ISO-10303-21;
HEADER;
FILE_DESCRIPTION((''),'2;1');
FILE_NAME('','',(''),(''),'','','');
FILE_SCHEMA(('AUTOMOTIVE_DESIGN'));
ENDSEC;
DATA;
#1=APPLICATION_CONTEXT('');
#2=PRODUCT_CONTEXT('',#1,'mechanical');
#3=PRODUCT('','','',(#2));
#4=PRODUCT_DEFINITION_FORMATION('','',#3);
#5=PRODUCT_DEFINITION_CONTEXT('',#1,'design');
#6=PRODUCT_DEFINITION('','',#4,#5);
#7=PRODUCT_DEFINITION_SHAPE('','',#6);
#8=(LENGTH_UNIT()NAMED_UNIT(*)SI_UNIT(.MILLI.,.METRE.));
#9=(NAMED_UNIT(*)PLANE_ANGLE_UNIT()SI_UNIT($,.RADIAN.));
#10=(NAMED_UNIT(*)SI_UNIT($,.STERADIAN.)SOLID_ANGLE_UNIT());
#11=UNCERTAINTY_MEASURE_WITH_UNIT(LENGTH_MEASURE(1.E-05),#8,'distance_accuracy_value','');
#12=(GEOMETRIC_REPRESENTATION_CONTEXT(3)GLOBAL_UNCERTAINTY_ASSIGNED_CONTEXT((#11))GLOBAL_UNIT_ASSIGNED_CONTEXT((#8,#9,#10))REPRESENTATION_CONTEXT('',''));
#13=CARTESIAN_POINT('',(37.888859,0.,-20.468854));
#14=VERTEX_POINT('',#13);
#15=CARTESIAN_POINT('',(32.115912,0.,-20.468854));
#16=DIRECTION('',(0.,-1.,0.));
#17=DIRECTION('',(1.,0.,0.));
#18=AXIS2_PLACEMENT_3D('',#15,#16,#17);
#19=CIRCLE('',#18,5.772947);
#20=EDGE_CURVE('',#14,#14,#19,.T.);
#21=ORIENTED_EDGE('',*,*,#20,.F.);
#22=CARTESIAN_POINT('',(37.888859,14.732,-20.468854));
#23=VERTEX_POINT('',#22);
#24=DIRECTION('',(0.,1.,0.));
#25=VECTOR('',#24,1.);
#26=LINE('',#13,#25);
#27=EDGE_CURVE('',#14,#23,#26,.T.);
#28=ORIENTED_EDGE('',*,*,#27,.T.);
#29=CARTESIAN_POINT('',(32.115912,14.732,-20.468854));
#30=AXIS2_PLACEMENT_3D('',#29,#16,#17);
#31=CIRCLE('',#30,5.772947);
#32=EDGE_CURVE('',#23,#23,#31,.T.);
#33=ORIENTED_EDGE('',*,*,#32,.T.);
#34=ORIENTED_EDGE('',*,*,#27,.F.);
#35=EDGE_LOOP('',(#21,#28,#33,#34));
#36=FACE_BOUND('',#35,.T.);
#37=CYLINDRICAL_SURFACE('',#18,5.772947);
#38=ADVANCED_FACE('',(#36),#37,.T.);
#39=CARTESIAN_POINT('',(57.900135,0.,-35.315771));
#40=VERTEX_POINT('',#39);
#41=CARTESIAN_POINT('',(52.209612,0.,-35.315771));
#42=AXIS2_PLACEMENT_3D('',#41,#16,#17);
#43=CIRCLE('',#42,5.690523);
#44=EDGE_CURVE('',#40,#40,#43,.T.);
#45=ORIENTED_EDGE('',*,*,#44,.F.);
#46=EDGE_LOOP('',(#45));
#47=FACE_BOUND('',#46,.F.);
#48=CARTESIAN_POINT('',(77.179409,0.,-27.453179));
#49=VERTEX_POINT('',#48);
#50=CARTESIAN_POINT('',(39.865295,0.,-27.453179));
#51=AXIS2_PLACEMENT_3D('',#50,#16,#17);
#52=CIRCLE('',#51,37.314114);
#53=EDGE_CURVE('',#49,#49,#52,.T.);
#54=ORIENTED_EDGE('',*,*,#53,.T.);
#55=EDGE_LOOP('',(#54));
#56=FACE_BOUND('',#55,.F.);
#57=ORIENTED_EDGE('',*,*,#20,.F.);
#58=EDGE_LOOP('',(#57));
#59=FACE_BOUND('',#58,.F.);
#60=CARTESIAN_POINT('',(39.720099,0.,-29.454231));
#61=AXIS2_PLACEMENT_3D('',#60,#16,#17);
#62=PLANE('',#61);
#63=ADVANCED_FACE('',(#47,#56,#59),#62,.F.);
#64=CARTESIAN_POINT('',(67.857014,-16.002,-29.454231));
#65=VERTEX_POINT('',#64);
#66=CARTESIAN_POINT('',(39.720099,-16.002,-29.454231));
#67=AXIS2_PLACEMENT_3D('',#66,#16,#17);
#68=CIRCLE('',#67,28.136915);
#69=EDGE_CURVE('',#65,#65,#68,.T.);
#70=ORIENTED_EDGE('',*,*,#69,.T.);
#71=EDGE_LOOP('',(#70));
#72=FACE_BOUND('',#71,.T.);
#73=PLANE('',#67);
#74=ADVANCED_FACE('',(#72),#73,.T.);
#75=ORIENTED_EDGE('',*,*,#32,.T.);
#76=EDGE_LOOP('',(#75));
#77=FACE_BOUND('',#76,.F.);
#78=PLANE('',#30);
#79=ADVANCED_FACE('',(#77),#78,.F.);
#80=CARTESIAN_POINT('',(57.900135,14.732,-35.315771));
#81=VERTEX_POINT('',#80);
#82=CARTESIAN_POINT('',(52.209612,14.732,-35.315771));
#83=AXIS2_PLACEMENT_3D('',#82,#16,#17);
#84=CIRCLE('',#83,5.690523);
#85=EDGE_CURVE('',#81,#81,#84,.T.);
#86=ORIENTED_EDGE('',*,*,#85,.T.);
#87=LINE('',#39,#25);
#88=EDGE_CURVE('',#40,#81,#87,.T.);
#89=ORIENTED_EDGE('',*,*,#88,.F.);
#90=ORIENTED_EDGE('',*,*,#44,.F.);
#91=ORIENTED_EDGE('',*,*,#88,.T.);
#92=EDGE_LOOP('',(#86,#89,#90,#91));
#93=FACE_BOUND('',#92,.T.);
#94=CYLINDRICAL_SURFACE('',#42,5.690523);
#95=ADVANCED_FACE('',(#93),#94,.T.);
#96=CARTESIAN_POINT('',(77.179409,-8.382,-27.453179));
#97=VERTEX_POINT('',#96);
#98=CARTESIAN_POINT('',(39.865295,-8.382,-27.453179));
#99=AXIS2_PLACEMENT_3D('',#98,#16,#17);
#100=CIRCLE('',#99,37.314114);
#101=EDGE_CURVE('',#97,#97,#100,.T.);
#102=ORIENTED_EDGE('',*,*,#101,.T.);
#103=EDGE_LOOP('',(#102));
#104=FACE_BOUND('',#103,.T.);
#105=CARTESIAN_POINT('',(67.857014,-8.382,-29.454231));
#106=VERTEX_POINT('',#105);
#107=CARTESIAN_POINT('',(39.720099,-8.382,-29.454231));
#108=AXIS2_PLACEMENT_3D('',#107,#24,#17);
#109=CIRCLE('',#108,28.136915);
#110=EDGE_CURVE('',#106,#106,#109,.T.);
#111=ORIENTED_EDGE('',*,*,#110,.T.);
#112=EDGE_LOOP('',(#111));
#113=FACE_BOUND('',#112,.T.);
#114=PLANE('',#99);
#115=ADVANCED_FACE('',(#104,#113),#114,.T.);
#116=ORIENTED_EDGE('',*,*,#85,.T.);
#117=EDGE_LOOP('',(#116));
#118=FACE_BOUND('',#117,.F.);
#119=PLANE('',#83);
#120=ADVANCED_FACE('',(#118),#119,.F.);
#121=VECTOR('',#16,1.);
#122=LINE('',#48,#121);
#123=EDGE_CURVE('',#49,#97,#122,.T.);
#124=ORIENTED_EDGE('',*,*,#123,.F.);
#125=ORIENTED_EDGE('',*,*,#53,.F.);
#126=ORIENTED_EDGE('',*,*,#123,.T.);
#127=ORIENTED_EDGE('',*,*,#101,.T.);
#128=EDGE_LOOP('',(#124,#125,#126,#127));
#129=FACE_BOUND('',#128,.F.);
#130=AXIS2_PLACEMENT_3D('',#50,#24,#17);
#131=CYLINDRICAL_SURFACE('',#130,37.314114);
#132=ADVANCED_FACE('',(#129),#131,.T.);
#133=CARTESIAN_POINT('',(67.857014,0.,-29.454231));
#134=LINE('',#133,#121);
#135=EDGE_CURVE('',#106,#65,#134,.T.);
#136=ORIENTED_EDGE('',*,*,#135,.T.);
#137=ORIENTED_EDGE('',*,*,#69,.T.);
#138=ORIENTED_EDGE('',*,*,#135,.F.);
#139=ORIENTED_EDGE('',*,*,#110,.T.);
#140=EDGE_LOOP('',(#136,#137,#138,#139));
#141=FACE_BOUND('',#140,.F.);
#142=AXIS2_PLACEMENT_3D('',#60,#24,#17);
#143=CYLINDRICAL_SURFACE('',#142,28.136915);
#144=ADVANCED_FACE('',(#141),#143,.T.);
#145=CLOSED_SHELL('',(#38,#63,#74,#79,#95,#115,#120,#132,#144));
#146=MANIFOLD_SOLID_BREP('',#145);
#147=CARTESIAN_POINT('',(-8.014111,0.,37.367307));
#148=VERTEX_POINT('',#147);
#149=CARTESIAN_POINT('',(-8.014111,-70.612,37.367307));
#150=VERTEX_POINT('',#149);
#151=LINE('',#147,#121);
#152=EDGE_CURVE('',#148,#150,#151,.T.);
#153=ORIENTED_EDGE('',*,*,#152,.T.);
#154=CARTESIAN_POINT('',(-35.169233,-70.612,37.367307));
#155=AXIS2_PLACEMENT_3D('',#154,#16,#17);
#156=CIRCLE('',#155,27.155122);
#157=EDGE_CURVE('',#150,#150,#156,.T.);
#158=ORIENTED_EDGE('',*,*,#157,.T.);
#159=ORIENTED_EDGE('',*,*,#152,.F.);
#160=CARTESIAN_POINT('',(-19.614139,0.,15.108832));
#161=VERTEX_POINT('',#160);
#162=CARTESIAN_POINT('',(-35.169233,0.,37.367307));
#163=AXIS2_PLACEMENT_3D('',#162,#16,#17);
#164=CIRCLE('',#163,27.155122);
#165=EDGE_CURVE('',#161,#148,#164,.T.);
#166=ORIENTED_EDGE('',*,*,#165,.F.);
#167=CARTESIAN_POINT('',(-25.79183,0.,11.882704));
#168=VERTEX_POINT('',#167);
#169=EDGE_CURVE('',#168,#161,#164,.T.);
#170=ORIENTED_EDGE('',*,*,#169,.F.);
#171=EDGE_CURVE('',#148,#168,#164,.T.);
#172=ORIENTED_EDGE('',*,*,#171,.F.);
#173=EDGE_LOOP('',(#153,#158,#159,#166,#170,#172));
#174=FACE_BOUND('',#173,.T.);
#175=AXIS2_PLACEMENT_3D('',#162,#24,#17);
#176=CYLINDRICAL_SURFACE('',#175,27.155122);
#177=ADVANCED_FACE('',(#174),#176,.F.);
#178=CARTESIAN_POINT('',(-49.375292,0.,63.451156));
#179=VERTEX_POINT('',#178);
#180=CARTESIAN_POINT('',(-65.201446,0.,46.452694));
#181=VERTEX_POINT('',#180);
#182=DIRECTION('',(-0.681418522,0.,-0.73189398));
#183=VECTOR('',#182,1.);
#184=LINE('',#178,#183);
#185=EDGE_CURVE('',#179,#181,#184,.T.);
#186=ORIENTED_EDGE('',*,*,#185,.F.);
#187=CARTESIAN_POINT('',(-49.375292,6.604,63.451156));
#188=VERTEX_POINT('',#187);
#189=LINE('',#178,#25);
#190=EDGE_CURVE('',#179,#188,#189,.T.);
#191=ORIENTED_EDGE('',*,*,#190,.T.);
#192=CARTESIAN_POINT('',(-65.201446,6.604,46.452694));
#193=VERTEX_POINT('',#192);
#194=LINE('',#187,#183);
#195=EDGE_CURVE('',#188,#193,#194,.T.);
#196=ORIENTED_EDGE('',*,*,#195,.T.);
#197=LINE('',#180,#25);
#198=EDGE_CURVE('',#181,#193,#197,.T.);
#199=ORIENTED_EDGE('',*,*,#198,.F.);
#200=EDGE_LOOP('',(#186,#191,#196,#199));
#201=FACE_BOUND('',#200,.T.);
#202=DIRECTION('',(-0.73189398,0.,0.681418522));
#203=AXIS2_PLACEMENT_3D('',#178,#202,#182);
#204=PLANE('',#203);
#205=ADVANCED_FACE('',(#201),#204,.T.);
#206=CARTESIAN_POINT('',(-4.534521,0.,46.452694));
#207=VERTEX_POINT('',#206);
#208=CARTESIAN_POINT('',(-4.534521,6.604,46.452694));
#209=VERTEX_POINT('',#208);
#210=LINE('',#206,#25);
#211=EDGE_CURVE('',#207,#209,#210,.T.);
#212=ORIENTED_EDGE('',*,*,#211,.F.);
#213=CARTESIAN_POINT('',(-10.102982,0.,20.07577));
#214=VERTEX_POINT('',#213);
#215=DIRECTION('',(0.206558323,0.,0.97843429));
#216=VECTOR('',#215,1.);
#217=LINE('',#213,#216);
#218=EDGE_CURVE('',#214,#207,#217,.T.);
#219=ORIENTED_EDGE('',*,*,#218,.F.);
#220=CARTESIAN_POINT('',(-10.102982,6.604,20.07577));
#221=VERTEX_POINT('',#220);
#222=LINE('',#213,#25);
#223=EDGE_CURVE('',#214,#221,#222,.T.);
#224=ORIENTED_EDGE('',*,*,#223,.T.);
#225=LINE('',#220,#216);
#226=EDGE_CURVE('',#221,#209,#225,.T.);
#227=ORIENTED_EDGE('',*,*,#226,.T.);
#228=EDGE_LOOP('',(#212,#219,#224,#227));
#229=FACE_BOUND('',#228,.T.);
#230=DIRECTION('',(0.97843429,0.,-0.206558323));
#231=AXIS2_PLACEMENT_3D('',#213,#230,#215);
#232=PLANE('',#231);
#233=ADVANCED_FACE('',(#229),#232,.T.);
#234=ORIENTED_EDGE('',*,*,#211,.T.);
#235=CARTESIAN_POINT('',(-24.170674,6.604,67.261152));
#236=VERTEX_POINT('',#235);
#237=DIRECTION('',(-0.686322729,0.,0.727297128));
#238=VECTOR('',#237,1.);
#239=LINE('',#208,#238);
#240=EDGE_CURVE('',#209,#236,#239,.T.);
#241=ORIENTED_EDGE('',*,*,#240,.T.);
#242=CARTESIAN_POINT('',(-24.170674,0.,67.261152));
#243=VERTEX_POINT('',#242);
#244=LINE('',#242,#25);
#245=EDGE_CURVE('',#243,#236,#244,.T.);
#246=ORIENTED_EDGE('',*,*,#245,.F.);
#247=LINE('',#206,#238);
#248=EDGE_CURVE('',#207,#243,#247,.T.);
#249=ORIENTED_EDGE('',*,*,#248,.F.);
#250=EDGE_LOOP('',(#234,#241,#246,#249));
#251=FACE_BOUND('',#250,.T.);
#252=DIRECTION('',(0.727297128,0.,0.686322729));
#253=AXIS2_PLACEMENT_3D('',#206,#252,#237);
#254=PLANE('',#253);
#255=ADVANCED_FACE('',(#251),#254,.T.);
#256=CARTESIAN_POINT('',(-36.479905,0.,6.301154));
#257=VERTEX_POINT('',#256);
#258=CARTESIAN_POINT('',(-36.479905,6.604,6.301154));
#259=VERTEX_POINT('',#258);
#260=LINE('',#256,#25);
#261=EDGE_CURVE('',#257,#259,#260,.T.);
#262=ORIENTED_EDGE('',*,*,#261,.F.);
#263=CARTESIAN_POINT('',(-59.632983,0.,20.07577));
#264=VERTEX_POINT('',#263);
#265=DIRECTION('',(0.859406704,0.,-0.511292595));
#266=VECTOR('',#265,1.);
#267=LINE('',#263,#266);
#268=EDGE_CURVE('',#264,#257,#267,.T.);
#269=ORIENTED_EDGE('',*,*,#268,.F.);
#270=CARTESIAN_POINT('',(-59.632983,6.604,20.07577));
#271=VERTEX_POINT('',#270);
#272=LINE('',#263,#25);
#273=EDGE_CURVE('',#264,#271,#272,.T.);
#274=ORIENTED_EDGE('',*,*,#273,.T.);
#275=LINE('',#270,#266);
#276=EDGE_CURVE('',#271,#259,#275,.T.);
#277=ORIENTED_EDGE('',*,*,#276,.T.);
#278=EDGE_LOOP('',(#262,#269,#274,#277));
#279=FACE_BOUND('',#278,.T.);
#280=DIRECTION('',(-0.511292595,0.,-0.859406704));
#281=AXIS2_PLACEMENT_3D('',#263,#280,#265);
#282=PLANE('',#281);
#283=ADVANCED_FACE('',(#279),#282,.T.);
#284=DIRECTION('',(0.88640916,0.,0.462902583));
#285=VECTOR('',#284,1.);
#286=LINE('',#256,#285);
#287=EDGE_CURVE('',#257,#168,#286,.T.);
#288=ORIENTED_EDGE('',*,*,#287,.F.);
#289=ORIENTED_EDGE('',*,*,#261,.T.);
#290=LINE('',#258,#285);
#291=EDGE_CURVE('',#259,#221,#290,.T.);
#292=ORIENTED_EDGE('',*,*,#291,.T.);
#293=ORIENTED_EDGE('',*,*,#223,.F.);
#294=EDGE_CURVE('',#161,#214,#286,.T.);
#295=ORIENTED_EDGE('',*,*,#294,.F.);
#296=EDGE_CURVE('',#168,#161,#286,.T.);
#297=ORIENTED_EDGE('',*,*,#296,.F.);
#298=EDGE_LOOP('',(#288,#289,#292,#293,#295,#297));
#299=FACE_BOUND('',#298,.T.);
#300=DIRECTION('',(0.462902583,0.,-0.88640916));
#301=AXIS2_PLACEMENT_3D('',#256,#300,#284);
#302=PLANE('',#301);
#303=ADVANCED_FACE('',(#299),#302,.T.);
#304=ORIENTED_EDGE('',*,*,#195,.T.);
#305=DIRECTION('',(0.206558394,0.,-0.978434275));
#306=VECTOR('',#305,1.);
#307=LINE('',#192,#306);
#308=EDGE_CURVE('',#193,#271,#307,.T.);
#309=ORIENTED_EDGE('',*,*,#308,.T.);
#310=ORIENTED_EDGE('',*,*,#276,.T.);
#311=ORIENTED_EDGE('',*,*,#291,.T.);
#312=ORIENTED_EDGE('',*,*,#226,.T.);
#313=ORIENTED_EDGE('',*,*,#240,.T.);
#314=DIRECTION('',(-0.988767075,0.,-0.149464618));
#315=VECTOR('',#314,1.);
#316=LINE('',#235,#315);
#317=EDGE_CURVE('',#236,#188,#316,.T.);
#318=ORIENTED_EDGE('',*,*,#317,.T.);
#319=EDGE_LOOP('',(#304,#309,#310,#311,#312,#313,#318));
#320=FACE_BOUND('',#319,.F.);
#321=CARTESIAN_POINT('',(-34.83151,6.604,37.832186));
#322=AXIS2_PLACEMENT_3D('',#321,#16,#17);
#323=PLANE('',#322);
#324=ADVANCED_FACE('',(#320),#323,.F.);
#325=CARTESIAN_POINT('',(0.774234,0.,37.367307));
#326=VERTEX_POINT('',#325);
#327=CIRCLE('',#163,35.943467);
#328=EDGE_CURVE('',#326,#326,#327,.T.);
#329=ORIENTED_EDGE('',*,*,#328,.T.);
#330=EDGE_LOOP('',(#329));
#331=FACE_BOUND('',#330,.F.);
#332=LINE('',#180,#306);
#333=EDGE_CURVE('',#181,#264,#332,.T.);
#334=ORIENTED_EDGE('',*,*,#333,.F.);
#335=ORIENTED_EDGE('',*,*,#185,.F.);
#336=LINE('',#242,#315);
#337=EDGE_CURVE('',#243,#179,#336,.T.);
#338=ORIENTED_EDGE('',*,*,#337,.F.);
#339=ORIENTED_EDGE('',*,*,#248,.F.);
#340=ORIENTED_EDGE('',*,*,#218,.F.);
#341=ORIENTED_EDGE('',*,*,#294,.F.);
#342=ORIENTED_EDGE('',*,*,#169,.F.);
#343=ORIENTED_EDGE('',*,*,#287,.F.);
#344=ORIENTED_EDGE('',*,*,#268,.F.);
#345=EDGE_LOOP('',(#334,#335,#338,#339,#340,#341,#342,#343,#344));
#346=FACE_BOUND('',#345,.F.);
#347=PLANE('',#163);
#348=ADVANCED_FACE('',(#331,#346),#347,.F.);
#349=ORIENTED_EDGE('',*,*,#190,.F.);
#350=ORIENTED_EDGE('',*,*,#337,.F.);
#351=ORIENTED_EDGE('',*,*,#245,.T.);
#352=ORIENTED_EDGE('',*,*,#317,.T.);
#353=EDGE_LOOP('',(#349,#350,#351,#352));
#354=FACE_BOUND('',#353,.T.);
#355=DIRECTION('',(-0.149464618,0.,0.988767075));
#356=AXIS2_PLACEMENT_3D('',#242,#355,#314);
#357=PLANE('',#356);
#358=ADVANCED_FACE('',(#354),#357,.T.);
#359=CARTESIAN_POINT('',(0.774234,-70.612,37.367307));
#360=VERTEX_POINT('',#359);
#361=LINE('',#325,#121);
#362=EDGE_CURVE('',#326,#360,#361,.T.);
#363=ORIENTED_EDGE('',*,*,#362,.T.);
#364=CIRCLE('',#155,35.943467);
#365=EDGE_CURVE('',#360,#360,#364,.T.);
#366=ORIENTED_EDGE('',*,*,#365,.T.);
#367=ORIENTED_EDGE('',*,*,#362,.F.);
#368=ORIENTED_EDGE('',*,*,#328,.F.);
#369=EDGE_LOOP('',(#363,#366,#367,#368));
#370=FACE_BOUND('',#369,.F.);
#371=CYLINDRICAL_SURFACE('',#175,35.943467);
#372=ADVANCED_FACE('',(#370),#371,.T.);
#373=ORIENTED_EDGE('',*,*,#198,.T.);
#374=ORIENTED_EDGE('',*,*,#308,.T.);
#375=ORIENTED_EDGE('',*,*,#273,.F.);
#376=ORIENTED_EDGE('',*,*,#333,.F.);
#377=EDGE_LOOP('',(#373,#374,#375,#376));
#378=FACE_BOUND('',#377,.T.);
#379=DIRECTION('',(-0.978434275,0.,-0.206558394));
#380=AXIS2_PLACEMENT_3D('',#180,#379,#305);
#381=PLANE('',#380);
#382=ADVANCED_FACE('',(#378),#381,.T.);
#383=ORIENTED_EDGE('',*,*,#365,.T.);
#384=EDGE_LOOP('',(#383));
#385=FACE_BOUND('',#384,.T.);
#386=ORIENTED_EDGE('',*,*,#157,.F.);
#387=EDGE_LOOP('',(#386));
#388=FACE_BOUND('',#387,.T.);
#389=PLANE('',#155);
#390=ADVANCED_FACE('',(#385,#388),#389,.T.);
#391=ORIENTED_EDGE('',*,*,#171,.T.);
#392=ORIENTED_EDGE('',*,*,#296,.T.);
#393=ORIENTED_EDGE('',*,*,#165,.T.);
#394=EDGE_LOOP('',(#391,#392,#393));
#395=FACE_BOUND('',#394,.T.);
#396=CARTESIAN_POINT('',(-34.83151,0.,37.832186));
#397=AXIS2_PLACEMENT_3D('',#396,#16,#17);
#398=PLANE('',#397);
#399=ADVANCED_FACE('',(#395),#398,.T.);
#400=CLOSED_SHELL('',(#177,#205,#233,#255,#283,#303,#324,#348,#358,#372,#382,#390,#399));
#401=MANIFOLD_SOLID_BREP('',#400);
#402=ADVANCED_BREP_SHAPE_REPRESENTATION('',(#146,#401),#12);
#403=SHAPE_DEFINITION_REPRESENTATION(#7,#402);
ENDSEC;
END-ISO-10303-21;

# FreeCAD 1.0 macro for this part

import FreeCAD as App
import Part
import Sketcher
from FreeCAD import Vector
Q = App.Units.Quantity

doc = App.newDocument("Part")
body = doc.addObject("PartDesign::Body", "Body")

sketch1 = body.newObject("Sketcher::SketchObject", "Sketch")
sketch1.AttachmentSupport = (doc.getObject("XZ_Plane"), [""])
sketch1.MapMode = "FlatFace"
sketch1.addGeometry([
    Part.Circle(Vector(-35, 37, 0), Vector(0, 0, 1), 36),
    Part.Circle(Vector(-35, 37, 0), Vector(0, 0, 1), 27),
], False)
sketch1.addConstraint([
    Sketcher.Constraint("Coincident", 1, 3, 0, 3),
    Sketcher.Constraint("Diameter", 0, 71.886934),
    Sketcher.Constraint("Diameter", 1, 54.310244),
    Sketcher.Constraint("DistanceX", 0, 3, -1, 1, 35.169233),
    Sketcher.Constraint("DistanceY", -1, 1, 0, 3, 37.367307),
])
pad1 = body.newObject("PartDesign::Pad", "Pad")
pad1.Profile = sketch1
pad1.Length = Q("2.78 in")

sketch2 = body.newObject("Sketcher::SketchObject", "Sketch001")
sketch2.AttachmentSupport = (doc.getObject("XZ_Plane"), [""])
sketch2.MapMode = "FlatFace"
sketch2.addGeometry([
    Part.LineSegment(Vector(-24, 67, 0), Vector(-49, 63, 0)),
    Part.LineSegment(Vector(-49, 63, 0), Vector(-65, 46, 0)),
    Part.LineSegment(Vector(-65, 46, 0), Vector(-60, 20, 0)),
    Part.LineSegment(Vector(-60, 20, 0), Vector(-36, 6, 0)),
    Part.LineSegment(Vector(-36, 6, 0), Vector(-10, 20, 0)),
    Part.LineSegment(Vector(-10, 20, 0), Vector(-5, 46, 0)),
    Part.LineSegment(Vector(-5, 46, 0), Vector(-24, 67, 0)),
], False)
sketch2.addConstraint([
    Sketcher.Constraint("Coincident", 0, 2, 1, 1),
    Sketcher.Constraint("Coincident", 1, 2, 2, 1),
    Sketcher.Constraint("Coincident", 2, 2, 3, 1),
    Sketcher.Constraint("Coincident", 3, 2, 4, 1),
    Sketcher.Constraint("Coincident", 4, 2, 5, 1),
    Sketcher.Constraint("Coincident", 5, 2, 6, 1),
    Sketcher.Constraint("Coincident", 6, 2, 0, 1),
    Sketcher.Constraint("Horizontal", 2, 2, 4, 2),
    Sketcher.Constraint("Horizontal", 1, 2, 5, 2),
    Sketcher.Constraint("Equal", 2, 5),
    Sketcher.Constraint("DistanceY", 3, 2, 0, 2, Q("2.2500001 in")),
    Sketcher.Constraint("DistanceX", 2, 2, 4, 2, Q("1.95 in")),
    Sketcher.Constraint("DistanceY", 0, 2, 6, 2, Q("0.1499998 in")),
    Sketcher.Constraint("Distance", 2, 26.958299),
    Sketcher.Constraint("Distance", 3, 26.94077),
    Sketcher.Constraint("Distance", 4, 29.757051),
    Sketcher.Constraint("Distance", 6, 28.61067),
    Sketcher.Constraint("DistanceY", -1, 1, 2, 2, 20.07577),
    Sketcher.Constraint("DistanceX", 5, 2, -1, 1, 4.534521),
    Sketcher.Constraint("DistanceY", 1, 2, 0, 2, 16.998462),
    Sketcher.Constraint("DistanceX", 2, 2, 0, 2, 10.257691),
])
pad2 = body.newObject("PartDesign::Pad", "Pad001")
pad2.Profile = sketch2
pad2.Length = Q("0.26 in")
pad2.Reversed = True
body2 = doc.addObject("PartDesign::Body", "Body001")

sketch3 = body2.newObject("Sketcher::SketchObject", "Sketch002")
sketch3.AttachmentSupport = (doc.getObject("XZ_Plane001"), [""])
sketch3.MapMode = "FlatFace"
sketch3.addGeometry(Part.Circle(Vector(40, -27, 0), Vector(0, 0, 1), 37), False)
sketch3.addConstraint([
    Sketcher.Constraint("Diameter", 0, 74.628228),
    Sketcher.Constraint("DistanceX", -1, 1, 0, 3, Q("1.5694998 in")),
    Sketcher.Constraint("DistanceY", 0, 3, -1, 1, 27.453179),
])
pad3 = body2.newObject("PartDesign::Pad", "Pad002")
pad3.Profile = sketch3
pad3.Length = Q("0.33 in")

sketch4 = body2.newObject("Sketcher::SketchObject", "Sketch003")
sketch4.AttachmentSupport = (doc.getObject("XZ_Plane001"), [""])
sketch4.MapMode = "FlatFace"
sketch4.addGeometry(Part.Circle(Vector(40, -29, 0), Vector(0, 0, 1), 28), False)
sketch4.addConstraint([
    Sketcher.Constraint("Diameter", 0, 56.27383),
    Sketcher.Constraint("DistanceX", -1, 1, 0, 3, 39.720099),
    Sketcher.Constraint("DistanceY", 0, 3, -1, 1, 29.454231),
])
pad4 = body2.newObject("PartDesign::Pad", "Pad003")
pad4.Profile = sketch4
pad4.Length = Q("0.63 in")

sketch5 = body2.newObject("Sketcher::SketchObject", "Sketch004")
sketch5.AttachmentSupport = (doc.getObject("XZ_Plane001"), [""])
sketch5.MapMode = "FlatFace"
sketch5.addGeometry([
    Part.Circle(Vector(32, -20, 0), Vector(0, 0, 1), 6),
    Part.Circle(Vector(52, -35, 0), Vector(0, 0, 1), 6),
], False)
sketch5.addConstraint([
    Sketcher.Constraint("Diameter", 0, 11.545894),
    Sketcher.Constraint("Diameter", 1, 11.381046),
    Sketcher.Constraint("DistanceX", 0, 3, 1, 3, 20.0937),
    Sketcher.Constraint("DistanceY", 1, 3, -1, 1, 35.315771),
    Sketcher.Constraint("DistanceX", -1, 1, 0, 3, 32.115912),
    Sketcher.Constraint("DistanceY", 0, 3, -1, 1, 20.468854),
])
pad5 = body2.newObject("PartDesign::Pad", "Pad004")
pad5.Profile = sketch5
pad5.Length = Q("0.58 in")
pad5.Reversed = True

doc.recompute()
